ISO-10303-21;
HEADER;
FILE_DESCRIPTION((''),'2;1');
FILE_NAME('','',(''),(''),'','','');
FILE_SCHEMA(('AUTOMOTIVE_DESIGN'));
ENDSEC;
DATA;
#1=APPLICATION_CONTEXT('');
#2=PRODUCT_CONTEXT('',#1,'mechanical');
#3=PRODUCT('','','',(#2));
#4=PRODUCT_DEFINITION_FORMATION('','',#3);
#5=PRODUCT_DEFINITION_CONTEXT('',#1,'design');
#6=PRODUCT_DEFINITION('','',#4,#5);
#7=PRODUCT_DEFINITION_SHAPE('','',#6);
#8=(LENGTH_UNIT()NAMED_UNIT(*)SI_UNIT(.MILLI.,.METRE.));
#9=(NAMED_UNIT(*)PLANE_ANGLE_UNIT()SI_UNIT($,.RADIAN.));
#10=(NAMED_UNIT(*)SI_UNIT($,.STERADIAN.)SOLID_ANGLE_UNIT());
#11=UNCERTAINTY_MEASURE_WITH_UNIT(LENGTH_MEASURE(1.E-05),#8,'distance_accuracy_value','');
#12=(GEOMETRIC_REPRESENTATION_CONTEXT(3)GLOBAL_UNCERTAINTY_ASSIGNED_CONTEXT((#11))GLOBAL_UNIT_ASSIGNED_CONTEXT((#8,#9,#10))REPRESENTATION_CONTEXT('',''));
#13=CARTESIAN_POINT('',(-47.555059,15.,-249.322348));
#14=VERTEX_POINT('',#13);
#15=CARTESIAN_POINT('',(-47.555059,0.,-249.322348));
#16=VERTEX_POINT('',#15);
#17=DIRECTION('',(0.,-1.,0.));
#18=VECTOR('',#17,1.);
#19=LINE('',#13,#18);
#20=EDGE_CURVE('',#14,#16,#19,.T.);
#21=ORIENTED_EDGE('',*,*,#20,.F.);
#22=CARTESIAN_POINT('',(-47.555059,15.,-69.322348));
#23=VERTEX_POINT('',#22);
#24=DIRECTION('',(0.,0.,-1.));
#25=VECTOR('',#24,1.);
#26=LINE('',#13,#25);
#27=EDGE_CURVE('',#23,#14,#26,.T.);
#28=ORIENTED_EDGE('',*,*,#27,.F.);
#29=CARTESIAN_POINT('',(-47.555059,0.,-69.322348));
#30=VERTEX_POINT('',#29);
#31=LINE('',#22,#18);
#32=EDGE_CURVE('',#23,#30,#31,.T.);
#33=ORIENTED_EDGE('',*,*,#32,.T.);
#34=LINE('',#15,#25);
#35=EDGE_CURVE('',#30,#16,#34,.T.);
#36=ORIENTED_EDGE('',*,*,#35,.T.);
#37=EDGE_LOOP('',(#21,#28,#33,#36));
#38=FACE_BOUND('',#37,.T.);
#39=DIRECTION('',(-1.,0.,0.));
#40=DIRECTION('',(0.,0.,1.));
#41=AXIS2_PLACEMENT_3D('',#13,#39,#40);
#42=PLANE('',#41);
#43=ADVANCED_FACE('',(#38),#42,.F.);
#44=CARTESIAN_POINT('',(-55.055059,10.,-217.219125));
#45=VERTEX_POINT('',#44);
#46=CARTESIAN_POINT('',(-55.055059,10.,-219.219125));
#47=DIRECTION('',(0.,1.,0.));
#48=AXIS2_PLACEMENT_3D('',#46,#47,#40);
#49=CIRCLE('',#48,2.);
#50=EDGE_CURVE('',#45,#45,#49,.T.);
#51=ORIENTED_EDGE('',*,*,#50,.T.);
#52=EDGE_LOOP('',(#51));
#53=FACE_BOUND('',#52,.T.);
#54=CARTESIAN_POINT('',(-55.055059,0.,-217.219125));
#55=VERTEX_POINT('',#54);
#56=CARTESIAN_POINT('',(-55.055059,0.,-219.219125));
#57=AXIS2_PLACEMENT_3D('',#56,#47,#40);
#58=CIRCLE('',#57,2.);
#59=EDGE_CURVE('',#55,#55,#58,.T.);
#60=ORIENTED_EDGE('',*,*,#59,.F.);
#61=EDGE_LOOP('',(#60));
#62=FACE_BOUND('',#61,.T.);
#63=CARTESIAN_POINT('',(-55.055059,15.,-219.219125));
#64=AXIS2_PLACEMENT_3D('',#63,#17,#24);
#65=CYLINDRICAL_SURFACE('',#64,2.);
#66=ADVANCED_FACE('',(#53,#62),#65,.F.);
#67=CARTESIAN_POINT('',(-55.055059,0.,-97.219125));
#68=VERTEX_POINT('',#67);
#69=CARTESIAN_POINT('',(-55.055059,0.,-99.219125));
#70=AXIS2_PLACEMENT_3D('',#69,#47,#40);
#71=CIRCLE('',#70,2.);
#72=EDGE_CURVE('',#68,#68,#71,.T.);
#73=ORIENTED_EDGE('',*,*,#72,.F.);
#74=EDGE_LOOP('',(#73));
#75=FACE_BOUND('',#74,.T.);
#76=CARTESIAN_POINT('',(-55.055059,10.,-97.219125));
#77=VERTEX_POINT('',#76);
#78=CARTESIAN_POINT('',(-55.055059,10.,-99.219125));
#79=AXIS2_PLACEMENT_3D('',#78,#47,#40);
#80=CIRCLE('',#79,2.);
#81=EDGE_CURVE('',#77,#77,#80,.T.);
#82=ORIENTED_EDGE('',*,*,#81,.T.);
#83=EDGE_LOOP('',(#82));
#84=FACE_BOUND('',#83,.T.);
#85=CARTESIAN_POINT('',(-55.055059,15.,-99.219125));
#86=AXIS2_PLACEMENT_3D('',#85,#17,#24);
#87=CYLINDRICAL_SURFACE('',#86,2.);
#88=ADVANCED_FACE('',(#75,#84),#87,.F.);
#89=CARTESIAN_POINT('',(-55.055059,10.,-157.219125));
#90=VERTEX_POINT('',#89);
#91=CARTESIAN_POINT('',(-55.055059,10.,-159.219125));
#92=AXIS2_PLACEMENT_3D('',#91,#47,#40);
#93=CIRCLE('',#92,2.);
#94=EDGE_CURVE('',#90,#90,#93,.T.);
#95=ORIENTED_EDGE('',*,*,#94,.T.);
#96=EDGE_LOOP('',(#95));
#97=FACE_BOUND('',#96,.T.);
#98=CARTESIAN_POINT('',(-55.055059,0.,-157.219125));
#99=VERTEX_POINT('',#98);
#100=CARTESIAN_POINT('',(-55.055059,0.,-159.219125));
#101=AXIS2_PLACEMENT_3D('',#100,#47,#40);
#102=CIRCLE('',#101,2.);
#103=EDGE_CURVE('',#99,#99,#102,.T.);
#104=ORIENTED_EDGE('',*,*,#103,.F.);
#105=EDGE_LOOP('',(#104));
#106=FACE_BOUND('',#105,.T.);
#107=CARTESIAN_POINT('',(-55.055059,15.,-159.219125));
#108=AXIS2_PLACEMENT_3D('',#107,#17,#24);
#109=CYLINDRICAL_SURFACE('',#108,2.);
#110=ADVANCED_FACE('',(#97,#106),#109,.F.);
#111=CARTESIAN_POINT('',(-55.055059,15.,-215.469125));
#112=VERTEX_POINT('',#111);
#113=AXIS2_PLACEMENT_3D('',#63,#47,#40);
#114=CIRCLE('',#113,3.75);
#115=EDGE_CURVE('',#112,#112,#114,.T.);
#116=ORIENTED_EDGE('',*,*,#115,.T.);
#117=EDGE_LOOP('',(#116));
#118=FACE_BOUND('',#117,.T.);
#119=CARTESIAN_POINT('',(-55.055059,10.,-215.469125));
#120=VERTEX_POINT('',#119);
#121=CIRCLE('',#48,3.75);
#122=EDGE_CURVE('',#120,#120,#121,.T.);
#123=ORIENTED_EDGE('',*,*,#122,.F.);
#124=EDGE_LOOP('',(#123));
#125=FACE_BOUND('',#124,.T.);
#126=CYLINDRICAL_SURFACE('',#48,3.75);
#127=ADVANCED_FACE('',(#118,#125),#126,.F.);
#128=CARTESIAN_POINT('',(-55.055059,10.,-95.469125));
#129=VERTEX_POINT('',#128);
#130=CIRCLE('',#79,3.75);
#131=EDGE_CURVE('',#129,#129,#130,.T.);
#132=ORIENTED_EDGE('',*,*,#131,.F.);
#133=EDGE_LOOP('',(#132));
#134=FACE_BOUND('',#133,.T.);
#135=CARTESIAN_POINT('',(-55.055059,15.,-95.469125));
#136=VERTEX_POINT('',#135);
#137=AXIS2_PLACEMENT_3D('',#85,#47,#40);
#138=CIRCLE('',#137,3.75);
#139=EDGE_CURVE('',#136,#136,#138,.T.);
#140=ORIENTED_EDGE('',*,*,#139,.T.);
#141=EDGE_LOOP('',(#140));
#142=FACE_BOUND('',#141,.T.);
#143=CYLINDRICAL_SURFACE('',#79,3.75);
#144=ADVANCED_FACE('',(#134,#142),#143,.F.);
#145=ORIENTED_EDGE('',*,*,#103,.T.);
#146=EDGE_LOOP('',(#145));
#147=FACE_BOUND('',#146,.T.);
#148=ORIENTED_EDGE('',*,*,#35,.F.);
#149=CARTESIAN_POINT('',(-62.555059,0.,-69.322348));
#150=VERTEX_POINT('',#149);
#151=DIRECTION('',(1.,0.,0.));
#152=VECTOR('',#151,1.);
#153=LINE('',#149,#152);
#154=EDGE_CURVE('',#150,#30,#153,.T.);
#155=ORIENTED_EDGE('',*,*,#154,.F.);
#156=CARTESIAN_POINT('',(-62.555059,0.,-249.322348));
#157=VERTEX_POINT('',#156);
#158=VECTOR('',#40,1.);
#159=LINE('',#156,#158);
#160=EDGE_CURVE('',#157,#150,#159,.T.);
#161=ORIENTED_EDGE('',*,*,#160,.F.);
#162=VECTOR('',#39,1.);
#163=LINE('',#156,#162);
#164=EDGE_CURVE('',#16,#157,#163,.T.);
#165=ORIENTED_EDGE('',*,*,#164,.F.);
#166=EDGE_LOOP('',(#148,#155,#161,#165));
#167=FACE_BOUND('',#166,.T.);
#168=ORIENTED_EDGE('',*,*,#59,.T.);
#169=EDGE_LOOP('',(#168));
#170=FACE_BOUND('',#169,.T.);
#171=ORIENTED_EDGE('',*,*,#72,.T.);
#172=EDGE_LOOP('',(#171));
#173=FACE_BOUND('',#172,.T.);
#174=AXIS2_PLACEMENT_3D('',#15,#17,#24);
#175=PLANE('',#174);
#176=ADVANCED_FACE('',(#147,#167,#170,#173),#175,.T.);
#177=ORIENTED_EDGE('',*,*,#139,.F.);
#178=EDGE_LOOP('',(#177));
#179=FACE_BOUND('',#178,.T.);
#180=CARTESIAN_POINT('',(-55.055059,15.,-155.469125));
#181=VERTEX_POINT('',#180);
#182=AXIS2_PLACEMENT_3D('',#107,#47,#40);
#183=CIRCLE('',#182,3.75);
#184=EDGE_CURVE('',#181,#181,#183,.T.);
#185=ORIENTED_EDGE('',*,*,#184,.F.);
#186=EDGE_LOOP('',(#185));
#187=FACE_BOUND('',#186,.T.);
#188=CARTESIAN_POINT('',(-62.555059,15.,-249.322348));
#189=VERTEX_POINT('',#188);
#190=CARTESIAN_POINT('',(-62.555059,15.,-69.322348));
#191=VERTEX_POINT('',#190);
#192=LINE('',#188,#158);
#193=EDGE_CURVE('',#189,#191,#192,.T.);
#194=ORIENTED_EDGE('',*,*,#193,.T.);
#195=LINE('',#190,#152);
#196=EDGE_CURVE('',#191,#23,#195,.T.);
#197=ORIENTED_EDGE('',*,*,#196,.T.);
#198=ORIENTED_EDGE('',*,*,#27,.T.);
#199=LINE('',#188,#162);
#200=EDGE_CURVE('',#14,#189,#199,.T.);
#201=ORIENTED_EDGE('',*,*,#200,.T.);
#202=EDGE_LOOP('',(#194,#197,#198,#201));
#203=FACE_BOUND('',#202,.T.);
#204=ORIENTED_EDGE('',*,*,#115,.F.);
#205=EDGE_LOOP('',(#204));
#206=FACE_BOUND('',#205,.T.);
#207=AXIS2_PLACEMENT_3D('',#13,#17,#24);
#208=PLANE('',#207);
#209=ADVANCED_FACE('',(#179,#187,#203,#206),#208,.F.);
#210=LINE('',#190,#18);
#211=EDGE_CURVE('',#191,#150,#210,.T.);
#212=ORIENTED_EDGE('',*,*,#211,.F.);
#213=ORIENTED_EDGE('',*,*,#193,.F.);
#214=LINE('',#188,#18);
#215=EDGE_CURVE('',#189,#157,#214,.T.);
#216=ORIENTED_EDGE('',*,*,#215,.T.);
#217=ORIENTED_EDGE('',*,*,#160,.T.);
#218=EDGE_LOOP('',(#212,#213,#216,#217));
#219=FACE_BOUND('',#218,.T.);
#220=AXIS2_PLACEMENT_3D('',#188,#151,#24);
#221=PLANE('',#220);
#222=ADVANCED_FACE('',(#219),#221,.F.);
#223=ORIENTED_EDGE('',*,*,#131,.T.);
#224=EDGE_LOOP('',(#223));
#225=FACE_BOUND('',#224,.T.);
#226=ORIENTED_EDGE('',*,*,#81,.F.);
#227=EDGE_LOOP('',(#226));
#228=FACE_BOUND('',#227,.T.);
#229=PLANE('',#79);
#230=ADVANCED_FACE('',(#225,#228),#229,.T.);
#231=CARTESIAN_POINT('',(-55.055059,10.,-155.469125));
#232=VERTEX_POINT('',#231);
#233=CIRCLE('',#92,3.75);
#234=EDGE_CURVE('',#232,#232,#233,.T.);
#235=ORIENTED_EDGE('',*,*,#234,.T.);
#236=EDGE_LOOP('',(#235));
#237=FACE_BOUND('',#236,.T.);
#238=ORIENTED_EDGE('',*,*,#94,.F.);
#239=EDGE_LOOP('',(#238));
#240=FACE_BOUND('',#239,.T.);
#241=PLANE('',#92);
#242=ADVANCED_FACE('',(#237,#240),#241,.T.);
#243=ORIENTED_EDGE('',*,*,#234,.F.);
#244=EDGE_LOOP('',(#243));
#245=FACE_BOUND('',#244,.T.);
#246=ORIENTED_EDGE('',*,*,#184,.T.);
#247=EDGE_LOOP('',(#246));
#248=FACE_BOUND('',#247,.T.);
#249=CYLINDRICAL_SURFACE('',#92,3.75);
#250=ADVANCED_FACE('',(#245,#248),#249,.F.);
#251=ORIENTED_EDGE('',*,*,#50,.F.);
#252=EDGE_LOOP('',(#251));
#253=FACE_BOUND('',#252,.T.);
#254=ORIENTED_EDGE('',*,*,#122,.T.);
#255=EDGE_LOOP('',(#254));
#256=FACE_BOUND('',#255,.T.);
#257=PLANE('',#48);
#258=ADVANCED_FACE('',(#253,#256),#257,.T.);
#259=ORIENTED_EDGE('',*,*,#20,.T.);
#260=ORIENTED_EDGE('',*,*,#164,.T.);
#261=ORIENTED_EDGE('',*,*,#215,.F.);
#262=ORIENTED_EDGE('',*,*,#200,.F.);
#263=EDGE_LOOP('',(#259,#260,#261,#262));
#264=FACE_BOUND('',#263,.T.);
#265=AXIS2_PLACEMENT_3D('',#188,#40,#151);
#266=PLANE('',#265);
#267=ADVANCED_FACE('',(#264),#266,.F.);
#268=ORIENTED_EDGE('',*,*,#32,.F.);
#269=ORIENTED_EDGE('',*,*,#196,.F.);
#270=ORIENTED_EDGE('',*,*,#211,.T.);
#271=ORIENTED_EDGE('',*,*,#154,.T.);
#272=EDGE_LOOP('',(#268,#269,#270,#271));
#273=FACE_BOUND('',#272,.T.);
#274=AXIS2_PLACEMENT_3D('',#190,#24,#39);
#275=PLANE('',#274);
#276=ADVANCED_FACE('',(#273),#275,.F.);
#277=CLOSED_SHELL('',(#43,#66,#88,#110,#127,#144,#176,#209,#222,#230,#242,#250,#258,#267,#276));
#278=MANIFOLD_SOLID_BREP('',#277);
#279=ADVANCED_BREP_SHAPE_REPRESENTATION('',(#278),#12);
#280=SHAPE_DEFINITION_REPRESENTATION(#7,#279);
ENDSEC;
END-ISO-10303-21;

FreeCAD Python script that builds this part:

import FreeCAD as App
import Part
import Sketcher

V = App.Vector

doc = App.newDocument("Part")
body = doc.addObject("PartDesign::Body", "Body")

sketch1 = body.newObject("Sketcher::SketchObject", "Sketch")
sketch1.AttachmentSupport = (doc.getObject("XZ_Plane"), [""])
sketch1.MapMode = "FlatFace"
sketch1.addGeometry(Part.LineSegment(V(-62.6, -249.3, 0), V(-62.6, -69.3, 0)), False)
sketch1.addGeometry(Part.LineSegment(V(-62.6, -69.3, 0), V(-47.6, -69.3, 0)), False)
sketch1.addGeometry(Part.LineSegment(V(-47.6, -69.3, 0), V(-47.6, -249.3, 0)), False)
sketch1.addGeometry(Part.LineSegment(V(-47.6, -249.3, 0), V(-62.6, -249.3, 0)), False)
sketch1.addGeometry(Part.Circle(V(-55.1, -99.2, 0), V(0, 0, 1), 2), False)
sketch1.addGeometry(Part.Circle(V(-55.1, -159.2, 0), V(0, 0, 1), 2), False)
sketch1.addGeometry(Part.Circle(V(-55.1, -219.2, 0), V(0, 0, 1), 2), False)
sketch1.addConstraint(Sketcher.Constraint("Coincident", 0, 2, 1, 1))
sketch1.addConstraint(Sketcher.Constraint("Coincident", 1, 2, 2, 1))
sketch1.addConstraint(Sketcher.Constraint("Coincident", 2, 2, 3, 1))
sketch1.addConstraint(Sketcher.Constraint("Coincident", 3, 2, 0, 1))
sketch1.addConstraint(Sketcher.Constraint("Vertical", 0))
sketch1.addConstraint(Sketcher.Constraint("Horizontal", 1))
sketch1.addConstraint(Sketcher.Constraint("Vertical", 2))
sketch1.addConstraint(Sketcher.Constraint("Horizontal", 3))
sketch1.addConstraint(Sketcher.Constraint("Equal", 4, 5))
sketch1.addConstraint(Sketcher.Constraint("Equal", 5, 6))
sketch1.addConstraint(Sketcher.Constraint("Vertical", 4, 3, 5, 3))
sketch1.addConstraint(Sketcher.Constraint("Vertical", 5, 3, 6, 3))
sketch1.addConstraint(Sketcher.Constraint("Diameter", 4, 4.0))
sketch1.addConstraint(Sketcher.Constraint("DistanceX", 1, 1, 1, 2, 15.0))
sketch1.addConstraint(Sketcher.Constraint("DistanceY", 0, 1, 0, 2, 180.0))
sketch1.addConstraint(Sketcher.Constraint("DistanceY", 5, 3, 4, 3, 60.0))
sketch1.addConstraint(Sketcher.Constraint("DistanceY", 6, 3, 5, 3, 60.0))
sketch1.addConstraint(Sketcher.Constraint("DistanceX", 0, 2, 4, 3, 7.5))
sketch1.addConstraint(Sketcher.Constraint("DistanceX", 4, 3, -1, 1, 55.055059))
sketch1.addConstraint(Sketcher.Constraint("DistanceY", 4, 3, -1, 1, 99.219125))
sketch1.addConstraint(Sketcher.Constraint("DistanceY", 0, 2, -1, 1, 69.322348))
pad1 = body.newObject("PartDesign::Pad", "Pad")
pad1.Profile = sketch1
pad1.Length = 15
pad1.Reversed = True

sketch2 = body.newObject("Sketcher::SketchObject", "Sketch001")
sketch2.AttachmentSupport = (doc.getObject("XZ_Plane"), [""])
sketch2.MapMode = "FlatFace"
sketch2.AttachmentOffset = App.Placement(V(0, 0, -15), App.Rotation())
sketch2.addGeometry(Part.Circle(V(-55.1, -99.2, 0), V(0, 0, 1), 3.8), False)
sketch2.addGeometry(Part.Circle(V(-55.1, -159.2, 0), V(0, 0, 1), 3.8), False)
sketch2.addGeometry(Part.Circle(V(-55.1, -219.2, 0), V(0, 0, 1), 3.8), False)
sketch2.addConstraint(Sketcher.Constraint("Equal", 0, 1))
sketch2.addConstraint(Sketcher.Constraint("Equal", 1, 2))
sketch2.addConstraint(Sketcher.Constraint("Vertical", 0, 3, 1, 3))
sketch2.addConstraint(Sketcher.Constraint("Vertical", 1, 3, 2, 3))
sketch2.addConstraint(Sketcher.Constraint("Diameter", 0, 7.5))
sketch2.addConstraint(Sketcher.Constraint("DistanceY", 1, 3, 0, 3, 60.0))
sketch2.addConstraint(Sketcher.Constraint("DistanceY", 2, 3, 1, 3, 60.0))
sketch2.addConstraint(Sketcher.Constraint("DistanceX", 0, 3, -1, 1, 55.055059))
sketch2.addConstraint(Sketcher.Constraint("DistanceY", 0, 3, -1, 1, 99.219125))
pocket1 = body.newObject("PartDesign::Pocket", "Pocket")
pocket1.Profile = sketch2
pocket1.Length = 5
pocket1.Reversed = True

doc.recompute()
